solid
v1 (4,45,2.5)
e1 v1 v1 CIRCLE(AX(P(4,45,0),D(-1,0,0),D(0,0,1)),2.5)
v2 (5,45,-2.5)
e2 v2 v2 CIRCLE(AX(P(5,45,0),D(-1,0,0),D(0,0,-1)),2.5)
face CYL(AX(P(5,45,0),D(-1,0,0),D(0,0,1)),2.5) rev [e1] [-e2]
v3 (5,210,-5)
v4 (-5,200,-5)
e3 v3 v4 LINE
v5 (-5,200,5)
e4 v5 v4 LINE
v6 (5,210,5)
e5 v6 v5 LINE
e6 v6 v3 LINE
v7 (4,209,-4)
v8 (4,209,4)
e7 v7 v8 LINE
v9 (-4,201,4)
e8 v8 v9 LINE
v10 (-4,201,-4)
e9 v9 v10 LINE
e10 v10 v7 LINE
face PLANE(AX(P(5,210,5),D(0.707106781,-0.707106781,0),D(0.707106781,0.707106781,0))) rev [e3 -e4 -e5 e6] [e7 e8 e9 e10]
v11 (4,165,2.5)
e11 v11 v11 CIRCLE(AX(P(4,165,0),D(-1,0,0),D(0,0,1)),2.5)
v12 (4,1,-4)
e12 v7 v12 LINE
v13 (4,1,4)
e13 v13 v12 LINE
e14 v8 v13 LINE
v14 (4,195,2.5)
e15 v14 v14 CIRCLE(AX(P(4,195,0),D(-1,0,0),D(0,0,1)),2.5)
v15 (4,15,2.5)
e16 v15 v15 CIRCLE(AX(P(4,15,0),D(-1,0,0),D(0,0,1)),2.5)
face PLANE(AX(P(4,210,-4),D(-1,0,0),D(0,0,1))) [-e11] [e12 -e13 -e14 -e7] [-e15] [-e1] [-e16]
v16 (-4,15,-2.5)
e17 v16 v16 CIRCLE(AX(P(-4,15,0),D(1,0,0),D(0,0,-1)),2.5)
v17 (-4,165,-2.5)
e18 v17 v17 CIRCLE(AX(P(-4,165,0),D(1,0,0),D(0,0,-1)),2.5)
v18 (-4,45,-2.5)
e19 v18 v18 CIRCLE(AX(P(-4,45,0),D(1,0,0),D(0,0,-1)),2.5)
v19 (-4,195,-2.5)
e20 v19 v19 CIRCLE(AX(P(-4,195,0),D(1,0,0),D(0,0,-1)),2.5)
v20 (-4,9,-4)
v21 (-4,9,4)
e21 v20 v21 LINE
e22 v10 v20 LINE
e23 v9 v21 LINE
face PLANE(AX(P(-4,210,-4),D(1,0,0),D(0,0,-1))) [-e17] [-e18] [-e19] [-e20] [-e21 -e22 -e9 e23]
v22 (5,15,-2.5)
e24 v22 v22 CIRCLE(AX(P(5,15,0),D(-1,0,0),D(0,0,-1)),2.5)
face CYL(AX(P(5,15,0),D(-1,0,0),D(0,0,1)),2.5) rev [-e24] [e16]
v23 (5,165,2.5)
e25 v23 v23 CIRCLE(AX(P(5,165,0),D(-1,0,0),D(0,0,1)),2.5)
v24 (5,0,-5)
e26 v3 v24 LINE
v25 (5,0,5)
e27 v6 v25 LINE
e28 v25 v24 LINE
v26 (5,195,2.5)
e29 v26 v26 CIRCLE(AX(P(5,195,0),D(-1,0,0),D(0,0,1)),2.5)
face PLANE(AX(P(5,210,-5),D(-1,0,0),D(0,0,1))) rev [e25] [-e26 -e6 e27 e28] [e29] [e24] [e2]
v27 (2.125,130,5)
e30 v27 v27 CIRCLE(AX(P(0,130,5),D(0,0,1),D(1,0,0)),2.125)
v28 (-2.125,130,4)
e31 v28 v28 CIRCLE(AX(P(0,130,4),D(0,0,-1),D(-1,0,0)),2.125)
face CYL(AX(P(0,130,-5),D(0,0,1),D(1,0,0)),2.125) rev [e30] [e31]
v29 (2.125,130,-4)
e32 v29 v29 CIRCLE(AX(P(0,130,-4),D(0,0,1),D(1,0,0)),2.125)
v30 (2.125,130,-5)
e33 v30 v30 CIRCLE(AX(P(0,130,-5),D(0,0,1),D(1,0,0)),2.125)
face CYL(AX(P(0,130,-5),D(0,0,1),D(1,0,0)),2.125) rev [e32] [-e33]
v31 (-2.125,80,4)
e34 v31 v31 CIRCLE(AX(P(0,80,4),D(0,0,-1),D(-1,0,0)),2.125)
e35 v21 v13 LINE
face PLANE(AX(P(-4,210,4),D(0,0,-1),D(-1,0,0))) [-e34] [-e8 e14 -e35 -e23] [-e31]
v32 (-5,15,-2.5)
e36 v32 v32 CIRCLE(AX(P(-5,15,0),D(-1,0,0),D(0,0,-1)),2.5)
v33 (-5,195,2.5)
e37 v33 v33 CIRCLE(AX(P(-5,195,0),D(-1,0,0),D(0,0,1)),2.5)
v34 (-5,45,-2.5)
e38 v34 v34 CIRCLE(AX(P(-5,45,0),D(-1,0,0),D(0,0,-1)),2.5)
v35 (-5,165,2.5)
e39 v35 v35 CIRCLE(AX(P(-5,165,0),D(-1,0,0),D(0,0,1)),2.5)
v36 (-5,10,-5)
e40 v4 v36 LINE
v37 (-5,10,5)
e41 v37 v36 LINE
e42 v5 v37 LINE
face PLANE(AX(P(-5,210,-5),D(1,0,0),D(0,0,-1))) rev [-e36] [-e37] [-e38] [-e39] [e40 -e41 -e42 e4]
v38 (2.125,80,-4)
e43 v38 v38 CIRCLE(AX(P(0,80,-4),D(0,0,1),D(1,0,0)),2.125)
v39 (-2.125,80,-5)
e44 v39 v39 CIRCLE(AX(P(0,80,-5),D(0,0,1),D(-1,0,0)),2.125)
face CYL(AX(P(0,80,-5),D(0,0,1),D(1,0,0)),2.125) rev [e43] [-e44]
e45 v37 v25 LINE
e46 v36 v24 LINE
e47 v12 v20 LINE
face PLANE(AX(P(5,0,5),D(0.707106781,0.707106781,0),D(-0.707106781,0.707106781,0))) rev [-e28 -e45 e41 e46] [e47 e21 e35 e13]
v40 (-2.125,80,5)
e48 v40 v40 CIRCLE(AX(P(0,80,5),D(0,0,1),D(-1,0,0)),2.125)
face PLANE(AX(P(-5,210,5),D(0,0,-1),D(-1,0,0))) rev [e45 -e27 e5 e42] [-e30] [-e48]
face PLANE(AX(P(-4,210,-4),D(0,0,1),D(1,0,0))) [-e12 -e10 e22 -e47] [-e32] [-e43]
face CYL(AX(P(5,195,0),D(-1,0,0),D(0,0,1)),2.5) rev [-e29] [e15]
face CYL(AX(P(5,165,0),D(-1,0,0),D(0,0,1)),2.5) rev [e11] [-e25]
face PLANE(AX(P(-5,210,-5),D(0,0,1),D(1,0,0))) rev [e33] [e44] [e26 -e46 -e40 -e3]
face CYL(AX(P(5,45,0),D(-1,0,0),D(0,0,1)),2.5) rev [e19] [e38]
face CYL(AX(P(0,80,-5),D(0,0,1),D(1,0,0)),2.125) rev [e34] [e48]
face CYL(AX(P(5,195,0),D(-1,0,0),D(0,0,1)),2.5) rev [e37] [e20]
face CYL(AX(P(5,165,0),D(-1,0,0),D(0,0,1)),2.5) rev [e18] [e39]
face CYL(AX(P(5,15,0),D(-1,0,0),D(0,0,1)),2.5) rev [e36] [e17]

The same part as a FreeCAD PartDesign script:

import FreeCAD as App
import Part
import Sketcher
from FreeCAD import Vector

doc = App.newDocument("Part")
params = doc.addObject("Spreadsheet::Sheet", "Params")
for row, (alias, value) in enumerate([
    ("sketch1_width", "10 mm"),
    ("sketch1_width2", "8 mm"),
    ("pad1_length", "210 mm"),
    ("sketch2_width", "10 mm"),
    ("pocket1_length", "10 mm"),
    ("sketch3_diameter", "5 mm"),
    ("pocket2_length", "10 mm"),
    ("sketch4_diameter", "4.25 mm"),
    ("pocket3_length", "10 mm"),
], start=1):
    params.set(f"A{row}", alias)
    params.set(f"B{row}", "=" + value)
    params.setAlias(f"B{row}", alias)

body = doc.addObject("PartDesign::Body", "Body")

sketch1 = body.newObject("Sketcher::SketchObject", "Sketch")
sketch1.AttachmentSupport = (doc.getObject("XZ_Plane"), [""])
sketch1.MapMode = "FlatFace"
sketch1.addGeometry([
    Part.LineSegment(Vector(-5, -5, 0), Vector(-5, 5, 0)),
    Part.LineSegment(Vector(-5, 5, 0), Vector(5, 5, 0)),
    Part.LineSegment(Vector(5, 5, 0), Vector(5, -5, 0)),
    Part.LineSegment(Vector(5, -5, 0), Vector(-5, -5, 0)),
    Part.LineSegment(Vector(4, 4, 0), Vector(-4, 4, 0)),
    Part.LineSegment(Vector(-4, 4, 0), Vector(-4, -4, 0)),
    Part.LineSegment(Vector(-4, -4, 0), Vector(4, -4, 0)),
    Part.LineSegment(Vector(4, -4, 0), Vector(4, 4, 0)),
], False)
sketch1.addConstraint([
    Sketcher.Constraint("Coincident", 0, 2, 1, 1),
    Sketcher.Constraint("Coincident", 1, 2, 2, 1),
    Sketcher.Constraint("Coincident", 2, 2, 3, 1),
    Sketcher.Constraint("Coincident", 3, 2, 0, 1),
    Sketcher.Constraint("Coincident", 4, 2, 5, 1),
    Sketcher.Constraint("Coincident", 5, 2, 6, 1),
    Sketcher.Constraint("Coincident", 6, 2, 7, 1),
    Sketcher.Constraint("Coincident", 7, 2, 4, 1),
    Sketcher.Constraint("Vertical", 0),
    Sketcher.Constraint("Horizontal", 1),
    Sketcher.Constraint("Vertical", 2),
    Sketcher.Constraint("Horizontal", 3),
    Sketcher.Constraint("Horizontal", 4),
    Sketcher.Constraint("Vertical", 5),
    Sketcher.Constraint("Horizontal", 6),
    Sketcher.Constraint("Vertical", 7),
    Sketcher.Constraint("Symmetric", 0, 2, 2, 2, -1, 1),
    Sketcher.Constraint("Symmetric", 4, 2, 6, 2, -1, 1),
    Sketcher.Constraint("Equal", 3, 0),
    Sketcher.Constraint("Equal", 6, 5),
    Sketcher.Constraint("DistanceX", 1, 1, 1, 2, 10.0),
    Sketcher.Constraint("DistanceX", 4, 2, 4, 1, 8.0),
])
sketch1.setExpression("Constraints[20]", "Params.sketch1_width")
sketch1.setExpression("Constraints[21]", "Params.sketch1_width2")
pad1 = body.newObject("PartDesign::Pad", "Pad")
pad1.Profile = sketch1
pad1.setExpression("Length", "Params.pad1_length")
pad1.Reversed = True

sketch2 = body.newObject("Sketcher::SketchObject", "Sketch001")
sketch2.AttachmentSupport = (doc.getObject("XY_Plane"), [""])
sketch2.MapMode = "FlatFace"
sketch2.AttachmentOffset = App.Placement(Vector(0, 0, -5), App.Rotation())
sketch2.addGeometry([
    Part.LineSegment(Vector(5, 210, 0), Vector(-5, 200, 0)),
    Part.LineSegment(Vector(-5, 200, 0), Vector(-5, 210, 0)),
    Part.LineSegment(Vector(-5, 210, 0), Vector(5, 210, 0)),
    Part.LineSegment(Vector(5, 0, 0), Vector(-5, 0, 0)),
    Part.LineSegment(Vector(-5, 0, 0), Vector(-5, 10, 0)),
    Part.LineSegment(Vector(-5, 10, 0), Vector(5, 0, 0)),
], False)
sketch2.addConstraint([
    Sketcher.Constraint("Coincident", 0, 2, 1, 1),
    Sketcher.Constraint("Coincident", 1, 2, 2, 1),
    Sketcher.Constraint("Coincident", 2, 2, 0, 1),
    Sketcher.Constraint("Coincident", 3, 2, 4, 1),
    Sketcher.Constraint("Coincident", 4, 2, 5, 1),
    Sketcher.Constraint("Coincident", 5, 2, 3, 1),
    Sketcher.Constraint("Vertical", 1),
    Sketcher.Constraint("Horizontal", 2),
    Sketcher.Constraint("Horizontal", 3),
    Sketcher.Constraint("Vertical", 4),
    Sketcher.Constraint("Symmetric", 3, 2, 5, 2, -1, 1),
    Sketcher.Constraint("Perpendicular", 0, 5),
    Sketcher.Constraint("Vertical", 1, 2, 3, 2),
    Sketcher.Constraint("Vertical", 2, 2, 5, 2),
    Sketcher.Constraint("Equal", 3, 1),
    Sketcher.Constraint("DistanceX", 2, 1, 2, 2, 10.0),
    Sketcher.Constraint("DistanceY", -1, 1, 0, 2, 200.0),
])
sketch2.setExpression("Constraints[15]", "Params.sketch2_width")
pocket1 = body.newObject("PartDesign::Pocket", "Pocket")
pocket1.Profile = sketch2
pocket1.setExpression("Length", "Params.pocket1_length")
pocket1.Reversed = True

sketch3 = body.newObject("Sketcher::SketchObject", "Sketch002")
sketch3.AttachmentSupport = (doc.getObject("YZ_Plane"), [""])
sketch3.MapMode = "FlatFace"
sketch3.AttachmentOffset = App.Placement(Vector(0, 0, -5), App.Rotation())
sketch3.addGeometry([
    Part.Circle(Vector(165, 0, 0), Vector(0, 0, 1), 2.5),
    Part.Circle(Vector(45, 0, 0), Vector(0, 0, 1), 2.5),
    Part.Circle(Vector(195, 0, 0), Vector(0, 0, 1), 2.5),
    Part.Circle(Vector(15, 0, 0), Vector(0, 0, 1), 2.5),
], False)
sketch3.addConstraint([
    Sketcher.Constraint("Equal", 0, 1),
    Sketcher.Constraint("Equal", 1, 2),
    Sketcher.Constraint("Equal", 2, 3),
    Sketcher.Constraint("PointOnObject", 0, 3, -1),
    Sketcher.Constraint("PointOnObject", 1, 3, -1),
    Sketcher.Constraint("PointOnObject", 2, 3, -1),
    Sketcher.Constraint("PointOnObject", 3, 3, -1),
    Sketcher.Constraint("Diameter", 0, 5.0),
    Sketcher.Constraint("DistanceX", -1, 1, 0, 3, 165.0),
    Sketcher.Constraint("DistanceX", -1, 1, 1, 3, 45.0),
    Sketcher.Constraint("DistanceX", -1, 1, 2, 3, 195.0),
    Sketcher.Constraint("DistanceX", -1, 1, 3, 3, 15.0),
])
sketch3.setExpression("Constraints[7]", "Params.sketch3_diameter")
pocket2 = body.newObject("PartDesign::Pocket", "Pocket001")
pocket2.Profile = sketch3
pocket2.setExpression("Length", "Params.pocket2_length")
pocket2.Reversed = True

sketch4 = body.newObject("Sketcher::SketchObject", "Sketch003")
sketch4.AttachmentSupport = (doc.getObject("XY_Plane"), [""])
sketch4.MapMode = "FlatFace"
sketch4.AttachmentOffset = App.Placement(Vector(0, 0, 5), App.Rotation())
sketch4.addGeometry([
    Part.Circle(Vector(0, 130, 0), Vector(0, 0, 1), 2.125),
    Part.Circle(Vector(0, 80, 0), Vector(0, 0, 1), 2.125),
], False)
sketch4.addConstraint([
    Sketcher.Constraint("Equal", 0, 1),
    Sketcher.Constraint("PointOnObject", 0, 3, -2),
    Sketcher.Constraint("PointOnObject", 1, 3, -2),
    Sketcher.Constraint("Diameter", 0, 4.25),
    Sketcher.Constraint("DistanceY", -1, 1, 0, 3, 130.0),
    Sketcher.Constraint("DistanceY", -1, 1, 1, 3, 80.0),
])
sketch4.setExpression("Constraints[3]", "Params.sketch4_diameter")
pocket3 = body.newObject("PartDesign::Pocket", "Pocket002")
pocket3.Profile = sketch4
pocket3.setExpression("Length", "Params.pocket3_length")

doc.recompute()
